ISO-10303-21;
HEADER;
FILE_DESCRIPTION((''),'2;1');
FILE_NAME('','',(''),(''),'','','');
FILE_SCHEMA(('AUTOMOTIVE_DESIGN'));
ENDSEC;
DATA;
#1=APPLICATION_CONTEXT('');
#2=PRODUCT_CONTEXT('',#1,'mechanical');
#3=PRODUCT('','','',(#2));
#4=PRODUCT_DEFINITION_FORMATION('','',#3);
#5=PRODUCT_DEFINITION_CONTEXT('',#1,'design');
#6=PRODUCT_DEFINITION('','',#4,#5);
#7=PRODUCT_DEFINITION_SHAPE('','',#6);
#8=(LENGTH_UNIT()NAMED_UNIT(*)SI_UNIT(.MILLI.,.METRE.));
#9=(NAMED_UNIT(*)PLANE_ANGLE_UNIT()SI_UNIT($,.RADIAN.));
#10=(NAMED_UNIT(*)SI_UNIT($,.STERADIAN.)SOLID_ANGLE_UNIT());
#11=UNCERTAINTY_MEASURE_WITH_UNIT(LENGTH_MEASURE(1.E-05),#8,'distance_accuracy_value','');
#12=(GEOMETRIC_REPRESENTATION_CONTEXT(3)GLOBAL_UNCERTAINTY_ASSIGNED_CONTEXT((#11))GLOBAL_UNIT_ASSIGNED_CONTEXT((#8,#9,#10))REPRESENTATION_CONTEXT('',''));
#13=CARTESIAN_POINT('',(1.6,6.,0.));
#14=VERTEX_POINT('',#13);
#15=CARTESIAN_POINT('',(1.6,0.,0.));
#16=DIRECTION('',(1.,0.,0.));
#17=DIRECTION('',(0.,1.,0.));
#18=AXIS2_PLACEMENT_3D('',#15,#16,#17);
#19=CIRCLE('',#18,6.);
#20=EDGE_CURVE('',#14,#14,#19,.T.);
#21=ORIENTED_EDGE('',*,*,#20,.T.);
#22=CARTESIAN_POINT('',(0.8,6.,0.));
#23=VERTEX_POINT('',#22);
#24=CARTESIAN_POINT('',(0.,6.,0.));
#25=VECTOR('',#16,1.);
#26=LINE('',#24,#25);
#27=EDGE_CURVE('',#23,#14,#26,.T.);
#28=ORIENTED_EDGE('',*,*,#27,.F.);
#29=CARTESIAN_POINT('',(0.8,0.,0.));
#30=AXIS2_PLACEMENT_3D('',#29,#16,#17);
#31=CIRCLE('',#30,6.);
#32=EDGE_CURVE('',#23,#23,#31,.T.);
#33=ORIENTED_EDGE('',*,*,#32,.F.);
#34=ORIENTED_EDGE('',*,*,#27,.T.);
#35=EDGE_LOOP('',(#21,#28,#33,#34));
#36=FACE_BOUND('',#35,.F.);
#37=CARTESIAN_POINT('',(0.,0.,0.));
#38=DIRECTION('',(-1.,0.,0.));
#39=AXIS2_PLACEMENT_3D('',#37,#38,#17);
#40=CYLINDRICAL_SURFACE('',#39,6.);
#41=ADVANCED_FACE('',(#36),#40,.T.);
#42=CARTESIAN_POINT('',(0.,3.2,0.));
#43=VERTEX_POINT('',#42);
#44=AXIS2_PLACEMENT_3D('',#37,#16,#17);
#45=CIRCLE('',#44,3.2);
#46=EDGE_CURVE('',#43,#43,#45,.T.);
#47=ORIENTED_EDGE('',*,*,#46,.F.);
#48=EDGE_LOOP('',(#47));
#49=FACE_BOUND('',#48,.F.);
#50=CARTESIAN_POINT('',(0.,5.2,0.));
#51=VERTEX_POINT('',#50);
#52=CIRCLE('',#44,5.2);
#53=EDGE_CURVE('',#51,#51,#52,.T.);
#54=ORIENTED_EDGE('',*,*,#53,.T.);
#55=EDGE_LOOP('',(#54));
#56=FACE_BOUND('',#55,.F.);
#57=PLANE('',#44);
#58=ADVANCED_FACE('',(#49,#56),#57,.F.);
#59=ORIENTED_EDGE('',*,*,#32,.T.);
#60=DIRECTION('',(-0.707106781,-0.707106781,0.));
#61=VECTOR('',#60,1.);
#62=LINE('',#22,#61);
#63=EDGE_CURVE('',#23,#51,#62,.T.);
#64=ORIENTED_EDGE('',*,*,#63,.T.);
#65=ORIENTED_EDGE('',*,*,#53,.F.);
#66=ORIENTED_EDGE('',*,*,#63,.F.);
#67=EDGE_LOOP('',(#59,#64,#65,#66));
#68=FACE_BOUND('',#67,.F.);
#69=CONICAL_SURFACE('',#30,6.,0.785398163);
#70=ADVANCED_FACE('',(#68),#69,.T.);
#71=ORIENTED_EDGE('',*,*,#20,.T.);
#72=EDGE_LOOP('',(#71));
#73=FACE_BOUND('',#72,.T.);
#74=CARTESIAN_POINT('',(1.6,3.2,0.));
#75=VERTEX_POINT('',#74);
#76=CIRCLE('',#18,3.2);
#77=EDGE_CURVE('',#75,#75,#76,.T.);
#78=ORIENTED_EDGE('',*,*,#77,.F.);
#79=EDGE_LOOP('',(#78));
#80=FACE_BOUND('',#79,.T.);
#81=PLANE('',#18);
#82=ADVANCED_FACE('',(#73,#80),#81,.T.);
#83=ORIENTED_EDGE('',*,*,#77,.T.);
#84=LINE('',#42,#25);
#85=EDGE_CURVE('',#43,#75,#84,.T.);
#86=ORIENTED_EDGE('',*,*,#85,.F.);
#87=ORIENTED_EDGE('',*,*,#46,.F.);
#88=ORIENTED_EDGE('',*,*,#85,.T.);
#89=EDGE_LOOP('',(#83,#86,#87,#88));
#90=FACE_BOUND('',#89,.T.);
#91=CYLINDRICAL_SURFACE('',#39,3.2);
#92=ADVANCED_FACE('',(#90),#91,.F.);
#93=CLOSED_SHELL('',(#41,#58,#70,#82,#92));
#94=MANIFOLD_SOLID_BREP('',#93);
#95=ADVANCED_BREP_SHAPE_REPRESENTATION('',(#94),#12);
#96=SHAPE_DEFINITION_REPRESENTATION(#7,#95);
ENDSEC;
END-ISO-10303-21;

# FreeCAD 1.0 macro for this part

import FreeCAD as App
import Part
import Sketcher
Q = App.Units.Quantity


def edges_at(feature, points):
    """Names of the edges that pass closest to the given points."""
    edges = feature.Shape.Edges
    near = lambda p: min(range(len(edges)), key=lambda i: edges[i].distToShape(Part.Vertex(*p))[0])
    return sorted({f"Edge{near(p) + 1}" for p in points})

doc = App.newDocument("Part")
body = doc.addObject("PartDesign::Body", "Body")

sketch1 = body.newObject("Sketcher::SketchObject", "Sketch")
sketch1.AttachmentSupport = (doc.getObject("YZ_Plane"), [""])
sketch1.MapMode = "FlatFace"
sketch1.addGeometry([
    Part.Circle(App.Vector(0, 0, 0), App.Vector(0, 0, 1), 6),
    Part.Circle(App.Vector(0, 0, 0), App.Vector(0, 0, 1), 3.2),
], False)
sketch1.addConstraint([
    Sketcher.Constraint("Coincident", 0, 3, -1, 1),
    Sketcher.Constraint("Coincident", 1, 3, -1, 1),
    Sketcher.Constraint("Diameter", 0, Q("12 mm")),
    Sketcher.Constraint("Diameter", 1, Q("6.4 mm")),
])
pad1 = body.newObject("PartDesign::Pad", "Pad")
pad1.Profile = sketch1
pad1.Length = 1.6
doc.recompute()

chamfer = body.newObject("PartDesign::Chamfer", "Chamfer")
chamfer.Base = (pad1, edges_at(pad1, [(0, -6, 0)]))
chamfer.Size = 0.8

doc.recompute()
